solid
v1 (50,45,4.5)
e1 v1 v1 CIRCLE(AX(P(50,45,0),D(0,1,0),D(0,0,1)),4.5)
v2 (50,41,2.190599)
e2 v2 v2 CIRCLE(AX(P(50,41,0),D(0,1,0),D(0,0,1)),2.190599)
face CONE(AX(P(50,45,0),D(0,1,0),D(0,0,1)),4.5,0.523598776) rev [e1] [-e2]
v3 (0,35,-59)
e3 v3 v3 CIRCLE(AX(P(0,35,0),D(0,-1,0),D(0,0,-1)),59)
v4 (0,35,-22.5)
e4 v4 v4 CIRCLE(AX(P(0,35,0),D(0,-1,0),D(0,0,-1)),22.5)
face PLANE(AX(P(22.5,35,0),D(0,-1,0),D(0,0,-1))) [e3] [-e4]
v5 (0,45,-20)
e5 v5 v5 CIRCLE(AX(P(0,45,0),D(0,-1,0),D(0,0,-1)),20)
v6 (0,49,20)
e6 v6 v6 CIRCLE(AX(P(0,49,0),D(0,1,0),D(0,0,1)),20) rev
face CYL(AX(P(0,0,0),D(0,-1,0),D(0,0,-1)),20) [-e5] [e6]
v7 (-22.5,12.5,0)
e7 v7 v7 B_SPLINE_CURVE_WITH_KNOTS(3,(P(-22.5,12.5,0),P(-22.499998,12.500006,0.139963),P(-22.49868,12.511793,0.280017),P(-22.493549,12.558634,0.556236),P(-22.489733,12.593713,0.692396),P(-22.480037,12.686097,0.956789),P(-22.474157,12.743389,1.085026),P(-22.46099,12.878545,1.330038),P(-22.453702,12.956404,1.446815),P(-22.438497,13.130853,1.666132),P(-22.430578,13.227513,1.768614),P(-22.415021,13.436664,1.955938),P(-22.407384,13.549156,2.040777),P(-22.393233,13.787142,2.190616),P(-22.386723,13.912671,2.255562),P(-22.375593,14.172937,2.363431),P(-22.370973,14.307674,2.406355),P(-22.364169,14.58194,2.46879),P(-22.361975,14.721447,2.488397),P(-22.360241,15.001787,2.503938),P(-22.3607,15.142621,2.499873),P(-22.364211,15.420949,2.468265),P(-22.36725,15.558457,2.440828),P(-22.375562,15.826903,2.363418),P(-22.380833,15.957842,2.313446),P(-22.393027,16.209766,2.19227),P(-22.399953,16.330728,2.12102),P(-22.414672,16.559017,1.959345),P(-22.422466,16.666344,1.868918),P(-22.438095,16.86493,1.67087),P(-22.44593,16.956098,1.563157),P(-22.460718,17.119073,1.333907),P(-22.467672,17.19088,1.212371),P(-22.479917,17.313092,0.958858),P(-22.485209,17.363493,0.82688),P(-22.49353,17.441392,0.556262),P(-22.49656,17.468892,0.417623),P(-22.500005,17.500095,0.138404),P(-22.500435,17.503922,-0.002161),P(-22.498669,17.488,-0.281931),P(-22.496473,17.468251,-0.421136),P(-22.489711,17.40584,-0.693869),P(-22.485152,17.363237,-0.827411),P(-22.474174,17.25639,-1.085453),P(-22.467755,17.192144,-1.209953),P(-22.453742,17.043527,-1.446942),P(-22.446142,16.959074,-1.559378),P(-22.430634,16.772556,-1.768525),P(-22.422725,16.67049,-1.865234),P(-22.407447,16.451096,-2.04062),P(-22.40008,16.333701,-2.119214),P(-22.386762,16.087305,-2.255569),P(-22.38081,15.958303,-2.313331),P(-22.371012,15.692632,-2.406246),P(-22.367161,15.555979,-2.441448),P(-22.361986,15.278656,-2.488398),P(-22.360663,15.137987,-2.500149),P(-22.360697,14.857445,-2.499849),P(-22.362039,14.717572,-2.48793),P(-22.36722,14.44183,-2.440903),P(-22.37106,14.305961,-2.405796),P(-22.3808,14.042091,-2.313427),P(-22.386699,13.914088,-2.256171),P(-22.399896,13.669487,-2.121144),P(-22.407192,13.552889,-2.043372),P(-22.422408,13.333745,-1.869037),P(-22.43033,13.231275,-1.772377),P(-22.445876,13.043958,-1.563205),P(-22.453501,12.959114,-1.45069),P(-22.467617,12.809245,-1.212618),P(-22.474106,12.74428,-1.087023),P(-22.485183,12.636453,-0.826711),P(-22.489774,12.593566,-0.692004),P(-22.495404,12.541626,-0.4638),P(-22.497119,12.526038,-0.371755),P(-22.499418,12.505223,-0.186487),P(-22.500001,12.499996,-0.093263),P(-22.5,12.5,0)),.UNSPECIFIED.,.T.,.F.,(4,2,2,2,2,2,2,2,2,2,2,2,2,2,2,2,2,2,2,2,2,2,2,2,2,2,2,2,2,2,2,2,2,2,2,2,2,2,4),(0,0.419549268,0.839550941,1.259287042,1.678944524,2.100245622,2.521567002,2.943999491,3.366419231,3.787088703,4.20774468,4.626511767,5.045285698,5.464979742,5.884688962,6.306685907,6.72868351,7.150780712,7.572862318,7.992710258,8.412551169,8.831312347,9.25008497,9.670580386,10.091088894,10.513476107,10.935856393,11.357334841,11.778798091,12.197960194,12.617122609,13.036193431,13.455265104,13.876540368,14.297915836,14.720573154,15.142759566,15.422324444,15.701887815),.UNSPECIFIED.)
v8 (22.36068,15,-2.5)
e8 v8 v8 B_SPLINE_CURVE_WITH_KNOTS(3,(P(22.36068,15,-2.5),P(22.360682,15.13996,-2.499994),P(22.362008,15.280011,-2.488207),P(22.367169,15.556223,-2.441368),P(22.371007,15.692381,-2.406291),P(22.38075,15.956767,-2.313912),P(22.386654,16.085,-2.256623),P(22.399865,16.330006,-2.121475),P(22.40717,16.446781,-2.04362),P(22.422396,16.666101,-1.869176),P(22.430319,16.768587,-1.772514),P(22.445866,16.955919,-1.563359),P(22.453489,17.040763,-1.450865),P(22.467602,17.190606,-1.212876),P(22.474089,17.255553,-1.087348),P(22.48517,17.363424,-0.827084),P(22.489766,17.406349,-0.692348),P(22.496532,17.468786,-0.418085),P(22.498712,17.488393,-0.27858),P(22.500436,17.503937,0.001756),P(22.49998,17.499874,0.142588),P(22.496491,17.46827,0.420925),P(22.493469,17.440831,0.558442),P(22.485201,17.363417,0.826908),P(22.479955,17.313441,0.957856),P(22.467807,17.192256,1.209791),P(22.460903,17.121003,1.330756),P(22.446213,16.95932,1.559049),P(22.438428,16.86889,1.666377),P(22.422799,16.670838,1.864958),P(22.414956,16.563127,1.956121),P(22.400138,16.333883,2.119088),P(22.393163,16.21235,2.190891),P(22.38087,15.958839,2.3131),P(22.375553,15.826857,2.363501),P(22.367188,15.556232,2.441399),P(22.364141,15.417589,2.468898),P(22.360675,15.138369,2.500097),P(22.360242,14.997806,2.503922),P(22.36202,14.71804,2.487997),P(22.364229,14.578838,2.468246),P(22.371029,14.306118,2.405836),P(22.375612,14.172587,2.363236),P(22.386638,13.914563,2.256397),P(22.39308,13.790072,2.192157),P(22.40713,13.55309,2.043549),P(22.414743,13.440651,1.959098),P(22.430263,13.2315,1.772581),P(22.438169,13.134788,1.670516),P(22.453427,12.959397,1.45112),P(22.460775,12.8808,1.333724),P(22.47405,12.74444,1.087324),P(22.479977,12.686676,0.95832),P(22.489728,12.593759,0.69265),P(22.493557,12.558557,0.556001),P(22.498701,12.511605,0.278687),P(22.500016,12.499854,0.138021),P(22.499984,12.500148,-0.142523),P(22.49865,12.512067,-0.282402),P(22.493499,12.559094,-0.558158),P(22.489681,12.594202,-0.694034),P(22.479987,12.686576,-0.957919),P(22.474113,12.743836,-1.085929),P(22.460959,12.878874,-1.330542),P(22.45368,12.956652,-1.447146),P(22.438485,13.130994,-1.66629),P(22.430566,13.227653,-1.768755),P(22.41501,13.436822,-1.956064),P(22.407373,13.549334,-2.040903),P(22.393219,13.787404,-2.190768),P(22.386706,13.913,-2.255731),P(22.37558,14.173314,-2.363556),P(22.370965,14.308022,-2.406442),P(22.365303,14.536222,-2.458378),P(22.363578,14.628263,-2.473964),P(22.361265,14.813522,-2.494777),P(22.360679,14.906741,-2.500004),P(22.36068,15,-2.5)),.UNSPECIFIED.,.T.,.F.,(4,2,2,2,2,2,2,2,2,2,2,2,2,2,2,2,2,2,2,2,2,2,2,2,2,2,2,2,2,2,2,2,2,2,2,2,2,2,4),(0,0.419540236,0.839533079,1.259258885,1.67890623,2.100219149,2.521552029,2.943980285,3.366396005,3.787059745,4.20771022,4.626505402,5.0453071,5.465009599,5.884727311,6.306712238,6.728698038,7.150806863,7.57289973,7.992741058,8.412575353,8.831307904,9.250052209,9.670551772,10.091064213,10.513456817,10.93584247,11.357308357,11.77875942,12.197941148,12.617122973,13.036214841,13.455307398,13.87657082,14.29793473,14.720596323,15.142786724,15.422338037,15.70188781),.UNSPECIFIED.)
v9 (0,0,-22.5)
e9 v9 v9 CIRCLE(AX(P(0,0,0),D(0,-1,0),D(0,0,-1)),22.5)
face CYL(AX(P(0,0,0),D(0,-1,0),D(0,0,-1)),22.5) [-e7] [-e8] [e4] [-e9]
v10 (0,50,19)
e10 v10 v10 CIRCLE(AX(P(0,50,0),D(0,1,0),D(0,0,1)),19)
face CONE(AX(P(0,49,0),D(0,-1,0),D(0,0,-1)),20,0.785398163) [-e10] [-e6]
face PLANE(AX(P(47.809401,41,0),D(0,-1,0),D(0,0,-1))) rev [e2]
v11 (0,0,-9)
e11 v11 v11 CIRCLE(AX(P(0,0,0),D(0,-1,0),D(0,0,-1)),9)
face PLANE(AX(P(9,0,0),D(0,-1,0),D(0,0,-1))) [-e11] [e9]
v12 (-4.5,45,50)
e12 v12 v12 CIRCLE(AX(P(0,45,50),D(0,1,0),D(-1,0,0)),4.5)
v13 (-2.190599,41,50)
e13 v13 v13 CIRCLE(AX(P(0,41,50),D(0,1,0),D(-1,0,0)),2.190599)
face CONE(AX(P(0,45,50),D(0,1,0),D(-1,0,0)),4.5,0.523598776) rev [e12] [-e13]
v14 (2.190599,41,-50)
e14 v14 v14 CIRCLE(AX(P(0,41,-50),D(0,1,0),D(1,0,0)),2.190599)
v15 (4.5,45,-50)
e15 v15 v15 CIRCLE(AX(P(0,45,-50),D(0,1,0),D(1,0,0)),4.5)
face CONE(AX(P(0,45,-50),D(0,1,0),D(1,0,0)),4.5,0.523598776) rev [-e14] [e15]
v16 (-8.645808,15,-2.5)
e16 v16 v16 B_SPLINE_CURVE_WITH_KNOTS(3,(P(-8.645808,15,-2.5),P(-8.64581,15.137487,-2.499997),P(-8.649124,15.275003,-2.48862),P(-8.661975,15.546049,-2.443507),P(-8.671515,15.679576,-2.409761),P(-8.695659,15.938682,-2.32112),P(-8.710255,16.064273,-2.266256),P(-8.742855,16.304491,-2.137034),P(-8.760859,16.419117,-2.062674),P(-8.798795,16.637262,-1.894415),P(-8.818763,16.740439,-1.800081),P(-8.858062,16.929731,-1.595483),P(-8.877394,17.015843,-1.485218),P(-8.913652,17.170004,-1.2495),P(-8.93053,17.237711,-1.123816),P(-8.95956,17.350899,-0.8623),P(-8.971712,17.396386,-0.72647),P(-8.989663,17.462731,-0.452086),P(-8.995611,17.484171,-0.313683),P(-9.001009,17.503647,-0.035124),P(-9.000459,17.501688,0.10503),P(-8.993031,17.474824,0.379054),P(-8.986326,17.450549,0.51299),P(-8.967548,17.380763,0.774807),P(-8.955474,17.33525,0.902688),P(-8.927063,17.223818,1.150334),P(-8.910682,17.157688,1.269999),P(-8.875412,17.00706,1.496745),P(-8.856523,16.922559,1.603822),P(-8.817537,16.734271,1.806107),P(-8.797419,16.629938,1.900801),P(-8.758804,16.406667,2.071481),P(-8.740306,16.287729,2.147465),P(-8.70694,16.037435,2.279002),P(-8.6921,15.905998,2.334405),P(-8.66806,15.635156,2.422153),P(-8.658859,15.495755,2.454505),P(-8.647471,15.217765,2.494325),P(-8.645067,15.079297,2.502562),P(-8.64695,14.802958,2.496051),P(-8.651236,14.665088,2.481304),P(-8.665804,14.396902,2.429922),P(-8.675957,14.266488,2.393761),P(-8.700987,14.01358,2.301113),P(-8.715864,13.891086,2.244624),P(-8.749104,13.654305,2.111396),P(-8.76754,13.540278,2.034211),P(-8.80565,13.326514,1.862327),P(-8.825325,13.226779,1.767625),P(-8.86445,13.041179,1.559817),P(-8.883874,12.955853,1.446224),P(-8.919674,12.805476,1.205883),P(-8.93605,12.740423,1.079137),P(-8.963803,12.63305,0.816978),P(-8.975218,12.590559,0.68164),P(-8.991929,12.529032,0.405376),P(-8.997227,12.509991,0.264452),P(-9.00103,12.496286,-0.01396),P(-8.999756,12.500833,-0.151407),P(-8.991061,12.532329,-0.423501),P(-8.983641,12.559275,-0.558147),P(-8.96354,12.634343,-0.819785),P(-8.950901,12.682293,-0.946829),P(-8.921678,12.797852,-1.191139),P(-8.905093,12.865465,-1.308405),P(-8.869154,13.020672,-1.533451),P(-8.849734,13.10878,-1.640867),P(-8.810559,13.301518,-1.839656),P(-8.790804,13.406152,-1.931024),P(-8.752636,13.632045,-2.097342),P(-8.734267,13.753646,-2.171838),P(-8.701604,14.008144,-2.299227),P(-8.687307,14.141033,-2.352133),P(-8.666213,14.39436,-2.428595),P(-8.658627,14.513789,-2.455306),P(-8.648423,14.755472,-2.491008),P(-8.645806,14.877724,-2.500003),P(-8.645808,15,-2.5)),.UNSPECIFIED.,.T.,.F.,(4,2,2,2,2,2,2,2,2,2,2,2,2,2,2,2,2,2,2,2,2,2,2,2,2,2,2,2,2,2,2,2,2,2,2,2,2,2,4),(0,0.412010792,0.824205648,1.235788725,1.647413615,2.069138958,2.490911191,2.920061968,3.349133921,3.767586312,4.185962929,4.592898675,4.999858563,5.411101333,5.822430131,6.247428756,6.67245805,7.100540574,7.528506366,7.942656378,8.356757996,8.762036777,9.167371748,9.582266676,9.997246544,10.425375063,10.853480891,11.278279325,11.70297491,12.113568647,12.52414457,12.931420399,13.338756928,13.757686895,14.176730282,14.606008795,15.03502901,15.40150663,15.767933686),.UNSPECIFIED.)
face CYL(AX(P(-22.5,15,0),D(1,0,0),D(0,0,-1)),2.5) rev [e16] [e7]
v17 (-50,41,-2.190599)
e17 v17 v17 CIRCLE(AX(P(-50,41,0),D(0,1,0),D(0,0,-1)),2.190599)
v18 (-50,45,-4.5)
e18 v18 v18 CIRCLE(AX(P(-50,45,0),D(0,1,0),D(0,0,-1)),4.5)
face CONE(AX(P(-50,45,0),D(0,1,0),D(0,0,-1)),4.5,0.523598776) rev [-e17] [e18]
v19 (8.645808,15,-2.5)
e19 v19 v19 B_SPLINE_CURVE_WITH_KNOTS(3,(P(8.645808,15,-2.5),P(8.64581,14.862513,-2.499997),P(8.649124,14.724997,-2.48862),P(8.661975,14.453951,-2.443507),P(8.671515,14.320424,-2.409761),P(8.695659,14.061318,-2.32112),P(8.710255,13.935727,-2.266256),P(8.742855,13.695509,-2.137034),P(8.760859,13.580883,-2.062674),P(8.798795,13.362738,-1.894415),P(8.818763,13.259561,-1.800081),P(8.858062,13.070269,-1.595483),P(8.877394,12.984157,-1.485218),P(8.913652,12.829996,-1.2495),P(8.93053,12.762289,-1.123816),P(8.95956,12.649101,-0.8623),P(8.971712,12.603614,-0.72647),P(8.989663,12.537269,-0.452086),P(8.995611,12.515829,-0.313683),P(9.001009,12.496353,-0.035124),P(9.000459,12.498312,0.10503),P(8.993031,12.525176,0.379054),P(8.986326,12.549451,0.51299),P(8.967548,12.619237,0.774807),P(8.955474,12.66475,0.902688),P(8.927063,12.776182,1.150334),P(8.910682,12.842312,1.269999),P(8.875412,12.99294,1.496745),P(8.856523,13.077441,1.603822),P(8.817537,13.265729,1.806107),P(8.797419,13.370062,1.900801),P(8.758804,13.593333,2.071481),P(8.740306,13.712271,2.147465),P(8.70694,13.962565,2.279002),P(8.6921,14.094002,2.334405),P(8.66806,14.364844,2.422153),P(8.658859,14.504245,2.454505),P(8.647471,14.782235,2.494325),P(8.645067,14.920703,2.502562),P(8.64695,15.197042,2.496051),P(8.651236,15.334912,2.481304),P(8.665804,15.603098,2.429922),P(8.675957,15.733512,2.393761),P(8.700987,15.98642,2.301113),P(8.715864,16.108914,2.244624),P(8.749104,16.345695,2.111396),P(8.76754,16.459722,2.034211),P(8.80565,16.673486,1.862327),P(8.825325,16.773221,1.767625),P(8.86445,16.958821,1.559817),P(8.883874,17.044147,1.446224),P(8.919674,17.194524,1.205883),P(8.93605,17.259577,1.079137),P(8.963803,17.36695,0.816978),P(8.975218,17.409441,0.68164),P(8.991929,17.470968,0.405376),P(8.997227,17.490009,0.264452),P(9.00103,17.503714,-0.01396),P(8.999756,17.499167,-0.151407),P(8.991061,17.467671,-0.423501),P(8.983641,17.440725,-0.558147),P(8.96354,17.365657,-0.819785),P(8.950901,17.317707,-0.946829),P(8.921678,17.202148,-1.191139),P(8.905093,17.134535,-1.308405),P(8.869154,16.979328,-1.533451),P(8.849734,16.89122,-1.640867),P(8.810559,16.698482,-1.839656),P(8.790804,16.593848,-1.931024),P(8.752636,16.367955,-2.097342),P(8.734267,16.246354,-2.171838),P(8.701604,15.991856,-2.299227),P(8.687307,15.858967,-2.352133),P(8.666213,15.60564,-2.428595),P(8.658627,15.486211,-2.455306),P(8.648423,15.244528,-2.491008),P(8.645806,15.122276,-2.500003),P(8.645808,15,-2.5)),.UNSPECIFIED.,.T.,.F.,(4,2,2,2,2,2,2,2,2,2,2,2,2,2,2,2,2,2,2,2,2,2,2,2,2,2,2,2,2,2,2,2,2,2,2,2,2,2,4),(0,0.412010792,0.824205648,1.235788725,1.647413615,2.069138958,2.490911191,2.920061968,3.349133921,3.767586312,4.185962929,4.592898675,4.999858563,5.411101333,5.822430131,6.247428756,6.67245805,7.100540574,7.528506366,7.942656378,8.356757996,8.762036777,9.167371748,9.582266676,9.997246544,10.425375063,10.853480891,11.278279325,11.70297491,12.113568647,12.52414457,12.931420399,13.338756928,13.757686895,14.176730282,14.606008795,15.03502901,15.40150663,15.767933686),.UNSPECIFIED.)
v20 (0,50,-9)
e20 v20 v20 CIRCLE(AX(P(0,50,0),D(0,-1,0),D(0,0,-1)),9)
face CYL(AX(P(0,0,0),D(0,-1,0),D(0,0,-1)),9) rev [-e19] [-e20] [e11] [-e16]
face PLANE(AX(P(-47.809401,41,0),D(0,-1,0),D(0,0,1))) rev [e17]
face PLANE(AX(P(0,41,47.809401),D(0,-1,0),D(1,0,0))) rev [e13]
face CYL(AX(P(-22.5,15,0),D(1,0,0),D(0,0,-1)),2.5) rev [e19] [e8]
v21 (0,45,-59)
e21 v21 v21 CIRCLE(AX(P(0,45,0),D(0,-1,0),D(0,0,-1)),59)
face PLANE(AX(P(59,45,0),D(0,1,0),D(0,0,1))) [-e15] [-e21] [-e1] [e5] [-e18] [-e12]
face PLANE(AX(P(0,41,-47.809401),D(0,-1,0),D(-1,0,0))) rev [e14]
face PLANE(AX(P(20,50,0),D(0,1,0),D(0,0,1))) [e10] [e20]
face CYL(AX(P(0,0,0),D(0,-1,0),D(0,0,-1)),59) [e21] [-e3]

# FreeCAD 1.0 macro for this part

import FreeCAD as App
import Part
import Sketcher
Q = App.Units.Quantity


def edges_at(feature, points):
    """Names of the edges that pass closest to the given points."""
    edges = feature.Shape.Edges
    near = lambda p: min(range(len(edges)), key=lambda i: edges[i].distToShape(Part.Vertex(*p))[0])
    return sorted({f"Edge{near(p) + 1}" for p in points})

doc = App.newDocument("Part")
params = doc.addObject("Spreadsheet::Sheet", "Params")
for row, (alias, value) in enumerate([
    ("sketch1_width", "39 mm"),
    ("sketch1_width2", "11 mm"),
    ("sketch1_height", "35 mm"),
    ("sketch1_height2", "10 mm"),
    ("sketch1_height3", "5 mm"),
    ("revolution_angle", "360 deg"),
    ("sketch2_height", "4 mm"),
    ("sketch2_width", "4.5 mm"),
    ("groove_angle", "360 deg"),
    ("sketch3_diameter", "5 mm"),
    ("pocket1_length", "45 mm"),
    ("chamfer_size", "1 mm"),
], start=1):
    params.set(f"A{row}", alias)
    params.set(f"B{row}", "=" + value)
    params.setAlias(f"B{row}", alias)

body = doc.addObject("PartDesign::Body", "Body")

# Sketch on XY plane
sketch1 = body.newObject("Sketcher::SketchObject", "Sketch")
sketch1.AttachmentSupport = (doc.getObject("XY_Plane"), [""])
sketch1.MapMode = "FlatFace"
sketch1.addGeometry([
    Part.LineSegment(App.Vector(9, 0, 0), App.Vector(22.5, 0, 0)),  # 0
    Part.LineSegment(App.Vector(22.5, 0, 0), App.Vector(22.5, 35, 0)),  # 1
    Part.LineSegment(App.Vector(22.5, 35, 0), App.Vector(59, 35, 0)),  # 2
    Part.LineSegment(App.Vector(59, 35, 0), App.Vector(59, 45, 0)),  # 3
    Part.LineSegment(App.Vector(59, 45, 0), App.Vector(20, 45, 0)),  # 4
    Part.LineSegment(App.Vector(20, 45, 0), App.Vector(20, 50, 0)),  # 5
    Part.LineSegment(App.Vector(20, 50, 0), App.Vector(9, 50, 0)),  # 6
    Part.LineSegment(App.Vector(9, 50, 0), App.Vector(9, 0, 0)),  # 7
], False)
sketch1.addConstraint([
    Sketcher.Constraint("Coincident", 0, 2, 1, 1),
    Sketcher.Constraint("Coincident", 1, 2, 2, 1),
    Sketcher.Constraint("Coincident", 2, 2, 3, 1),
    Sketcher.Constraint("Coincident", 3, 2, 4, 1),
    Sketcher.Constraint("Coincident", 4, 2, 5, 1),
    Sketcher.Constraint("Coincident", 5, 2, 6, 1),
    Sketcher.Constraint("Coincident", 6, 2, 7, 1),
    Sketcher.Constraint("Coincident", 7, 2, 0, 1),
    Sketcher.Constraint("Horizontal", 0),
    Sketcher.Constraint("Vertical", 1),
    Sketcher.Constraint("Horizontal", 2),
    Sketcher.Constraint("Vertical", 3),
    Sketcher.Constraint("Horizontal", 4),
    Sketcher.Constraint("Vertical", 5),
    Sketcher.Constraint("Horizontal", 6),
    Sketcher.Constraint("Vertical", 7),
    Sketcher.Constraint("PointOnObject", 0, 2, -1),
    Sketcher.Constraint("DistanceX", 4, 2, 4, 1, Q("39 mm")),
    Sketcher.Constraint("DistanceX", 6, 2, 6, 1, Q("11 mm")),
    Sketcher.Constraint("DistanceY", 1, 1, 1, 2, Q("35 mm")),
    Sketcher.Constraint("DistanceY", 3, 1, 3, 2, Q("10 mm")),
    Sketcher.Constraint("DistanceY", 5, 1, 5, 2, Q("5 mm")),
    Sketcher.Constraint("DistanceX", 0, 1, 0, 2, Q("13.5 mm")),
    Sketcher.Constraint("DistanceX", -1, 1, 2, 2, Q("59 mm")),
])
sketch1.setExpression("Constraints[17]", "Params.sketch1_width")
sketch1.setExpression("Constraints[18]", "Params.sketch1_width2")
sketch1.setExpression("Constraints[19]", "Params.sketch1_height")
sketch1.setExpression("Constraints[20]", "Params.sketch1_height2")
sketch1.setExpression("Constraints[21]", "Params.sketch1_height3")
revolution = body.newObject("PartDesign::Revolution", "Revolution")
revolution.Profile = sketch1
revolution.ReferenceAxis = (sketch1, ["V_Axis"])
revolution.setExpression("Angle", "Params.revolution_angle")

# Sketch on XY plane
sketch2 = body.newObject("Sketcher::SketchObject", "Sketch001")
sketch2.AttachmentSupport = (doc.getObject("XY_Plane"), [""])
sketch2.MapMode = "FlatFace"
sketch2.addGeometry([
    Part.LineSegment(App.Vector(50, 45, 0), App.Vector(45.5, 45, 0)),
    Part.LineSegment(App.Vector(45.5, 45, 0), App.Vector(47.809401, 41, 0)),
    Part.LineSegment(App.Vector(47.809401, 41, 0), App.Vector(50, 41, 0)),
    Part.LineSegment(App.Vector(50, 41, 0), App.Vector(50, 45, 0)),
], False)
sketch2.addGeometry(Part.LineSegment(App.Vector(50, 45, 0), App.Vector(50, 41, 0)), True)  # axis
sketch2.addConstraint([
    Sketcher.Constraint("Coincident", 0, 2, 1, 1),
    Sketcher.Constraint("Coincident", 1, 2, 2, 1),
    Sketcher.Constraint("Coincident", 2, 2, 3, 1),
    Sketcher.Constraint("Coincident", 3, 2, 0, 1),
    Sketcher.Constraint("Horizontal", 0),
    Sketcher.Constraint("Horizontal", 2),
    Sketcher.Constraint("Vertical", 3),
    Sketcher.Constraint("Vertical", 4),
    Sketcher.Constraint("Coincident", 4, 1, 3, 2),
    Sketcher.Constraint("Horizontal", 1, 2, 4, 2),
    Sketcher.Constraint("DistanceY", 3, 1, 3, 2, Q("4 mm")),
    Sketcher.Constraint("Angle", 1, Q("-60 deg")),
    Sketcher.Constraint("DistanceX", 0, 2, 0, 1, Q("4.5 mm")),
    Sketcher.Constraint("DistanceY", -1, 1, 0, 2, Q("45 mm")),
    Sketcher.Constraint("DistanceX", -1, 1, 2, 2, Q("50 mm")),
])
sketch2.setExpression("Constraints[10]", "Params.sketch2_height")
sketch2.setExpression("Constraints[12]", "Params.sketch2_width")
groove = body.newObject("PartDesign::Groove", "Groove")
groove.Profile = sketch2
groove.ReferenceAxis = (sketch2, ["Axis0"])
groove.setExpression("Angle", "Params.groove_angle")
doc.recompute()

polarpattern = body.newObject("PartDesign::PolarPattern", "PolarPattern")
polarpattern.Originals = [groove]
polarpattern.Axis = (doc.getObject("Y_Axis"), [""])
polarpattern.Angle = 360
polarpattern.Occurrences = 4
body.Tip = polarpattern

# Sketch on YZ plane
sketch3 = body.newObject("Sketcher::SketchObject", "Sketch002")
sketch3.AttachmentSupport = (doc.getObject("YZ_Plane"), [""])
sketch3.MapMode = "FlatFace"
sketch3.addGeometry(Part.Circle(App.Vector(15, 0, 0), App.Vector(0, 0, 1), 2.5), False)
sketch3.addConstraint([
    Sketcher.Constraint("PointOnObject", 0, 3, -1),
    Sketcher.Constraint("Diameter", 0, Q("5 mm")),
    Sketcher.Constraint("DistanceX", -1, 1, 0, 3, Q("15 mm")),
])
sketch3.setExpression("Constraints[1]", "Params.sketch3_diameter")
pocket1 = body.newObject("PartDesign::Pocket", "Pocket")
pocket1.Profile = sketch3
pocket1.setExpression("Length", "Params.pocket1_length")
pocket1.Midplane = True
doc.recompute()

chamfer = body.newObject("PartDesign::Chamfer", "Chamfer")
chamfer.Base = (pocket1, edges_at(pocket1, [(0, 50, 20)]))
chamfer.setExpression("Size", "Params.chamfer_size")

doc.recompute()
